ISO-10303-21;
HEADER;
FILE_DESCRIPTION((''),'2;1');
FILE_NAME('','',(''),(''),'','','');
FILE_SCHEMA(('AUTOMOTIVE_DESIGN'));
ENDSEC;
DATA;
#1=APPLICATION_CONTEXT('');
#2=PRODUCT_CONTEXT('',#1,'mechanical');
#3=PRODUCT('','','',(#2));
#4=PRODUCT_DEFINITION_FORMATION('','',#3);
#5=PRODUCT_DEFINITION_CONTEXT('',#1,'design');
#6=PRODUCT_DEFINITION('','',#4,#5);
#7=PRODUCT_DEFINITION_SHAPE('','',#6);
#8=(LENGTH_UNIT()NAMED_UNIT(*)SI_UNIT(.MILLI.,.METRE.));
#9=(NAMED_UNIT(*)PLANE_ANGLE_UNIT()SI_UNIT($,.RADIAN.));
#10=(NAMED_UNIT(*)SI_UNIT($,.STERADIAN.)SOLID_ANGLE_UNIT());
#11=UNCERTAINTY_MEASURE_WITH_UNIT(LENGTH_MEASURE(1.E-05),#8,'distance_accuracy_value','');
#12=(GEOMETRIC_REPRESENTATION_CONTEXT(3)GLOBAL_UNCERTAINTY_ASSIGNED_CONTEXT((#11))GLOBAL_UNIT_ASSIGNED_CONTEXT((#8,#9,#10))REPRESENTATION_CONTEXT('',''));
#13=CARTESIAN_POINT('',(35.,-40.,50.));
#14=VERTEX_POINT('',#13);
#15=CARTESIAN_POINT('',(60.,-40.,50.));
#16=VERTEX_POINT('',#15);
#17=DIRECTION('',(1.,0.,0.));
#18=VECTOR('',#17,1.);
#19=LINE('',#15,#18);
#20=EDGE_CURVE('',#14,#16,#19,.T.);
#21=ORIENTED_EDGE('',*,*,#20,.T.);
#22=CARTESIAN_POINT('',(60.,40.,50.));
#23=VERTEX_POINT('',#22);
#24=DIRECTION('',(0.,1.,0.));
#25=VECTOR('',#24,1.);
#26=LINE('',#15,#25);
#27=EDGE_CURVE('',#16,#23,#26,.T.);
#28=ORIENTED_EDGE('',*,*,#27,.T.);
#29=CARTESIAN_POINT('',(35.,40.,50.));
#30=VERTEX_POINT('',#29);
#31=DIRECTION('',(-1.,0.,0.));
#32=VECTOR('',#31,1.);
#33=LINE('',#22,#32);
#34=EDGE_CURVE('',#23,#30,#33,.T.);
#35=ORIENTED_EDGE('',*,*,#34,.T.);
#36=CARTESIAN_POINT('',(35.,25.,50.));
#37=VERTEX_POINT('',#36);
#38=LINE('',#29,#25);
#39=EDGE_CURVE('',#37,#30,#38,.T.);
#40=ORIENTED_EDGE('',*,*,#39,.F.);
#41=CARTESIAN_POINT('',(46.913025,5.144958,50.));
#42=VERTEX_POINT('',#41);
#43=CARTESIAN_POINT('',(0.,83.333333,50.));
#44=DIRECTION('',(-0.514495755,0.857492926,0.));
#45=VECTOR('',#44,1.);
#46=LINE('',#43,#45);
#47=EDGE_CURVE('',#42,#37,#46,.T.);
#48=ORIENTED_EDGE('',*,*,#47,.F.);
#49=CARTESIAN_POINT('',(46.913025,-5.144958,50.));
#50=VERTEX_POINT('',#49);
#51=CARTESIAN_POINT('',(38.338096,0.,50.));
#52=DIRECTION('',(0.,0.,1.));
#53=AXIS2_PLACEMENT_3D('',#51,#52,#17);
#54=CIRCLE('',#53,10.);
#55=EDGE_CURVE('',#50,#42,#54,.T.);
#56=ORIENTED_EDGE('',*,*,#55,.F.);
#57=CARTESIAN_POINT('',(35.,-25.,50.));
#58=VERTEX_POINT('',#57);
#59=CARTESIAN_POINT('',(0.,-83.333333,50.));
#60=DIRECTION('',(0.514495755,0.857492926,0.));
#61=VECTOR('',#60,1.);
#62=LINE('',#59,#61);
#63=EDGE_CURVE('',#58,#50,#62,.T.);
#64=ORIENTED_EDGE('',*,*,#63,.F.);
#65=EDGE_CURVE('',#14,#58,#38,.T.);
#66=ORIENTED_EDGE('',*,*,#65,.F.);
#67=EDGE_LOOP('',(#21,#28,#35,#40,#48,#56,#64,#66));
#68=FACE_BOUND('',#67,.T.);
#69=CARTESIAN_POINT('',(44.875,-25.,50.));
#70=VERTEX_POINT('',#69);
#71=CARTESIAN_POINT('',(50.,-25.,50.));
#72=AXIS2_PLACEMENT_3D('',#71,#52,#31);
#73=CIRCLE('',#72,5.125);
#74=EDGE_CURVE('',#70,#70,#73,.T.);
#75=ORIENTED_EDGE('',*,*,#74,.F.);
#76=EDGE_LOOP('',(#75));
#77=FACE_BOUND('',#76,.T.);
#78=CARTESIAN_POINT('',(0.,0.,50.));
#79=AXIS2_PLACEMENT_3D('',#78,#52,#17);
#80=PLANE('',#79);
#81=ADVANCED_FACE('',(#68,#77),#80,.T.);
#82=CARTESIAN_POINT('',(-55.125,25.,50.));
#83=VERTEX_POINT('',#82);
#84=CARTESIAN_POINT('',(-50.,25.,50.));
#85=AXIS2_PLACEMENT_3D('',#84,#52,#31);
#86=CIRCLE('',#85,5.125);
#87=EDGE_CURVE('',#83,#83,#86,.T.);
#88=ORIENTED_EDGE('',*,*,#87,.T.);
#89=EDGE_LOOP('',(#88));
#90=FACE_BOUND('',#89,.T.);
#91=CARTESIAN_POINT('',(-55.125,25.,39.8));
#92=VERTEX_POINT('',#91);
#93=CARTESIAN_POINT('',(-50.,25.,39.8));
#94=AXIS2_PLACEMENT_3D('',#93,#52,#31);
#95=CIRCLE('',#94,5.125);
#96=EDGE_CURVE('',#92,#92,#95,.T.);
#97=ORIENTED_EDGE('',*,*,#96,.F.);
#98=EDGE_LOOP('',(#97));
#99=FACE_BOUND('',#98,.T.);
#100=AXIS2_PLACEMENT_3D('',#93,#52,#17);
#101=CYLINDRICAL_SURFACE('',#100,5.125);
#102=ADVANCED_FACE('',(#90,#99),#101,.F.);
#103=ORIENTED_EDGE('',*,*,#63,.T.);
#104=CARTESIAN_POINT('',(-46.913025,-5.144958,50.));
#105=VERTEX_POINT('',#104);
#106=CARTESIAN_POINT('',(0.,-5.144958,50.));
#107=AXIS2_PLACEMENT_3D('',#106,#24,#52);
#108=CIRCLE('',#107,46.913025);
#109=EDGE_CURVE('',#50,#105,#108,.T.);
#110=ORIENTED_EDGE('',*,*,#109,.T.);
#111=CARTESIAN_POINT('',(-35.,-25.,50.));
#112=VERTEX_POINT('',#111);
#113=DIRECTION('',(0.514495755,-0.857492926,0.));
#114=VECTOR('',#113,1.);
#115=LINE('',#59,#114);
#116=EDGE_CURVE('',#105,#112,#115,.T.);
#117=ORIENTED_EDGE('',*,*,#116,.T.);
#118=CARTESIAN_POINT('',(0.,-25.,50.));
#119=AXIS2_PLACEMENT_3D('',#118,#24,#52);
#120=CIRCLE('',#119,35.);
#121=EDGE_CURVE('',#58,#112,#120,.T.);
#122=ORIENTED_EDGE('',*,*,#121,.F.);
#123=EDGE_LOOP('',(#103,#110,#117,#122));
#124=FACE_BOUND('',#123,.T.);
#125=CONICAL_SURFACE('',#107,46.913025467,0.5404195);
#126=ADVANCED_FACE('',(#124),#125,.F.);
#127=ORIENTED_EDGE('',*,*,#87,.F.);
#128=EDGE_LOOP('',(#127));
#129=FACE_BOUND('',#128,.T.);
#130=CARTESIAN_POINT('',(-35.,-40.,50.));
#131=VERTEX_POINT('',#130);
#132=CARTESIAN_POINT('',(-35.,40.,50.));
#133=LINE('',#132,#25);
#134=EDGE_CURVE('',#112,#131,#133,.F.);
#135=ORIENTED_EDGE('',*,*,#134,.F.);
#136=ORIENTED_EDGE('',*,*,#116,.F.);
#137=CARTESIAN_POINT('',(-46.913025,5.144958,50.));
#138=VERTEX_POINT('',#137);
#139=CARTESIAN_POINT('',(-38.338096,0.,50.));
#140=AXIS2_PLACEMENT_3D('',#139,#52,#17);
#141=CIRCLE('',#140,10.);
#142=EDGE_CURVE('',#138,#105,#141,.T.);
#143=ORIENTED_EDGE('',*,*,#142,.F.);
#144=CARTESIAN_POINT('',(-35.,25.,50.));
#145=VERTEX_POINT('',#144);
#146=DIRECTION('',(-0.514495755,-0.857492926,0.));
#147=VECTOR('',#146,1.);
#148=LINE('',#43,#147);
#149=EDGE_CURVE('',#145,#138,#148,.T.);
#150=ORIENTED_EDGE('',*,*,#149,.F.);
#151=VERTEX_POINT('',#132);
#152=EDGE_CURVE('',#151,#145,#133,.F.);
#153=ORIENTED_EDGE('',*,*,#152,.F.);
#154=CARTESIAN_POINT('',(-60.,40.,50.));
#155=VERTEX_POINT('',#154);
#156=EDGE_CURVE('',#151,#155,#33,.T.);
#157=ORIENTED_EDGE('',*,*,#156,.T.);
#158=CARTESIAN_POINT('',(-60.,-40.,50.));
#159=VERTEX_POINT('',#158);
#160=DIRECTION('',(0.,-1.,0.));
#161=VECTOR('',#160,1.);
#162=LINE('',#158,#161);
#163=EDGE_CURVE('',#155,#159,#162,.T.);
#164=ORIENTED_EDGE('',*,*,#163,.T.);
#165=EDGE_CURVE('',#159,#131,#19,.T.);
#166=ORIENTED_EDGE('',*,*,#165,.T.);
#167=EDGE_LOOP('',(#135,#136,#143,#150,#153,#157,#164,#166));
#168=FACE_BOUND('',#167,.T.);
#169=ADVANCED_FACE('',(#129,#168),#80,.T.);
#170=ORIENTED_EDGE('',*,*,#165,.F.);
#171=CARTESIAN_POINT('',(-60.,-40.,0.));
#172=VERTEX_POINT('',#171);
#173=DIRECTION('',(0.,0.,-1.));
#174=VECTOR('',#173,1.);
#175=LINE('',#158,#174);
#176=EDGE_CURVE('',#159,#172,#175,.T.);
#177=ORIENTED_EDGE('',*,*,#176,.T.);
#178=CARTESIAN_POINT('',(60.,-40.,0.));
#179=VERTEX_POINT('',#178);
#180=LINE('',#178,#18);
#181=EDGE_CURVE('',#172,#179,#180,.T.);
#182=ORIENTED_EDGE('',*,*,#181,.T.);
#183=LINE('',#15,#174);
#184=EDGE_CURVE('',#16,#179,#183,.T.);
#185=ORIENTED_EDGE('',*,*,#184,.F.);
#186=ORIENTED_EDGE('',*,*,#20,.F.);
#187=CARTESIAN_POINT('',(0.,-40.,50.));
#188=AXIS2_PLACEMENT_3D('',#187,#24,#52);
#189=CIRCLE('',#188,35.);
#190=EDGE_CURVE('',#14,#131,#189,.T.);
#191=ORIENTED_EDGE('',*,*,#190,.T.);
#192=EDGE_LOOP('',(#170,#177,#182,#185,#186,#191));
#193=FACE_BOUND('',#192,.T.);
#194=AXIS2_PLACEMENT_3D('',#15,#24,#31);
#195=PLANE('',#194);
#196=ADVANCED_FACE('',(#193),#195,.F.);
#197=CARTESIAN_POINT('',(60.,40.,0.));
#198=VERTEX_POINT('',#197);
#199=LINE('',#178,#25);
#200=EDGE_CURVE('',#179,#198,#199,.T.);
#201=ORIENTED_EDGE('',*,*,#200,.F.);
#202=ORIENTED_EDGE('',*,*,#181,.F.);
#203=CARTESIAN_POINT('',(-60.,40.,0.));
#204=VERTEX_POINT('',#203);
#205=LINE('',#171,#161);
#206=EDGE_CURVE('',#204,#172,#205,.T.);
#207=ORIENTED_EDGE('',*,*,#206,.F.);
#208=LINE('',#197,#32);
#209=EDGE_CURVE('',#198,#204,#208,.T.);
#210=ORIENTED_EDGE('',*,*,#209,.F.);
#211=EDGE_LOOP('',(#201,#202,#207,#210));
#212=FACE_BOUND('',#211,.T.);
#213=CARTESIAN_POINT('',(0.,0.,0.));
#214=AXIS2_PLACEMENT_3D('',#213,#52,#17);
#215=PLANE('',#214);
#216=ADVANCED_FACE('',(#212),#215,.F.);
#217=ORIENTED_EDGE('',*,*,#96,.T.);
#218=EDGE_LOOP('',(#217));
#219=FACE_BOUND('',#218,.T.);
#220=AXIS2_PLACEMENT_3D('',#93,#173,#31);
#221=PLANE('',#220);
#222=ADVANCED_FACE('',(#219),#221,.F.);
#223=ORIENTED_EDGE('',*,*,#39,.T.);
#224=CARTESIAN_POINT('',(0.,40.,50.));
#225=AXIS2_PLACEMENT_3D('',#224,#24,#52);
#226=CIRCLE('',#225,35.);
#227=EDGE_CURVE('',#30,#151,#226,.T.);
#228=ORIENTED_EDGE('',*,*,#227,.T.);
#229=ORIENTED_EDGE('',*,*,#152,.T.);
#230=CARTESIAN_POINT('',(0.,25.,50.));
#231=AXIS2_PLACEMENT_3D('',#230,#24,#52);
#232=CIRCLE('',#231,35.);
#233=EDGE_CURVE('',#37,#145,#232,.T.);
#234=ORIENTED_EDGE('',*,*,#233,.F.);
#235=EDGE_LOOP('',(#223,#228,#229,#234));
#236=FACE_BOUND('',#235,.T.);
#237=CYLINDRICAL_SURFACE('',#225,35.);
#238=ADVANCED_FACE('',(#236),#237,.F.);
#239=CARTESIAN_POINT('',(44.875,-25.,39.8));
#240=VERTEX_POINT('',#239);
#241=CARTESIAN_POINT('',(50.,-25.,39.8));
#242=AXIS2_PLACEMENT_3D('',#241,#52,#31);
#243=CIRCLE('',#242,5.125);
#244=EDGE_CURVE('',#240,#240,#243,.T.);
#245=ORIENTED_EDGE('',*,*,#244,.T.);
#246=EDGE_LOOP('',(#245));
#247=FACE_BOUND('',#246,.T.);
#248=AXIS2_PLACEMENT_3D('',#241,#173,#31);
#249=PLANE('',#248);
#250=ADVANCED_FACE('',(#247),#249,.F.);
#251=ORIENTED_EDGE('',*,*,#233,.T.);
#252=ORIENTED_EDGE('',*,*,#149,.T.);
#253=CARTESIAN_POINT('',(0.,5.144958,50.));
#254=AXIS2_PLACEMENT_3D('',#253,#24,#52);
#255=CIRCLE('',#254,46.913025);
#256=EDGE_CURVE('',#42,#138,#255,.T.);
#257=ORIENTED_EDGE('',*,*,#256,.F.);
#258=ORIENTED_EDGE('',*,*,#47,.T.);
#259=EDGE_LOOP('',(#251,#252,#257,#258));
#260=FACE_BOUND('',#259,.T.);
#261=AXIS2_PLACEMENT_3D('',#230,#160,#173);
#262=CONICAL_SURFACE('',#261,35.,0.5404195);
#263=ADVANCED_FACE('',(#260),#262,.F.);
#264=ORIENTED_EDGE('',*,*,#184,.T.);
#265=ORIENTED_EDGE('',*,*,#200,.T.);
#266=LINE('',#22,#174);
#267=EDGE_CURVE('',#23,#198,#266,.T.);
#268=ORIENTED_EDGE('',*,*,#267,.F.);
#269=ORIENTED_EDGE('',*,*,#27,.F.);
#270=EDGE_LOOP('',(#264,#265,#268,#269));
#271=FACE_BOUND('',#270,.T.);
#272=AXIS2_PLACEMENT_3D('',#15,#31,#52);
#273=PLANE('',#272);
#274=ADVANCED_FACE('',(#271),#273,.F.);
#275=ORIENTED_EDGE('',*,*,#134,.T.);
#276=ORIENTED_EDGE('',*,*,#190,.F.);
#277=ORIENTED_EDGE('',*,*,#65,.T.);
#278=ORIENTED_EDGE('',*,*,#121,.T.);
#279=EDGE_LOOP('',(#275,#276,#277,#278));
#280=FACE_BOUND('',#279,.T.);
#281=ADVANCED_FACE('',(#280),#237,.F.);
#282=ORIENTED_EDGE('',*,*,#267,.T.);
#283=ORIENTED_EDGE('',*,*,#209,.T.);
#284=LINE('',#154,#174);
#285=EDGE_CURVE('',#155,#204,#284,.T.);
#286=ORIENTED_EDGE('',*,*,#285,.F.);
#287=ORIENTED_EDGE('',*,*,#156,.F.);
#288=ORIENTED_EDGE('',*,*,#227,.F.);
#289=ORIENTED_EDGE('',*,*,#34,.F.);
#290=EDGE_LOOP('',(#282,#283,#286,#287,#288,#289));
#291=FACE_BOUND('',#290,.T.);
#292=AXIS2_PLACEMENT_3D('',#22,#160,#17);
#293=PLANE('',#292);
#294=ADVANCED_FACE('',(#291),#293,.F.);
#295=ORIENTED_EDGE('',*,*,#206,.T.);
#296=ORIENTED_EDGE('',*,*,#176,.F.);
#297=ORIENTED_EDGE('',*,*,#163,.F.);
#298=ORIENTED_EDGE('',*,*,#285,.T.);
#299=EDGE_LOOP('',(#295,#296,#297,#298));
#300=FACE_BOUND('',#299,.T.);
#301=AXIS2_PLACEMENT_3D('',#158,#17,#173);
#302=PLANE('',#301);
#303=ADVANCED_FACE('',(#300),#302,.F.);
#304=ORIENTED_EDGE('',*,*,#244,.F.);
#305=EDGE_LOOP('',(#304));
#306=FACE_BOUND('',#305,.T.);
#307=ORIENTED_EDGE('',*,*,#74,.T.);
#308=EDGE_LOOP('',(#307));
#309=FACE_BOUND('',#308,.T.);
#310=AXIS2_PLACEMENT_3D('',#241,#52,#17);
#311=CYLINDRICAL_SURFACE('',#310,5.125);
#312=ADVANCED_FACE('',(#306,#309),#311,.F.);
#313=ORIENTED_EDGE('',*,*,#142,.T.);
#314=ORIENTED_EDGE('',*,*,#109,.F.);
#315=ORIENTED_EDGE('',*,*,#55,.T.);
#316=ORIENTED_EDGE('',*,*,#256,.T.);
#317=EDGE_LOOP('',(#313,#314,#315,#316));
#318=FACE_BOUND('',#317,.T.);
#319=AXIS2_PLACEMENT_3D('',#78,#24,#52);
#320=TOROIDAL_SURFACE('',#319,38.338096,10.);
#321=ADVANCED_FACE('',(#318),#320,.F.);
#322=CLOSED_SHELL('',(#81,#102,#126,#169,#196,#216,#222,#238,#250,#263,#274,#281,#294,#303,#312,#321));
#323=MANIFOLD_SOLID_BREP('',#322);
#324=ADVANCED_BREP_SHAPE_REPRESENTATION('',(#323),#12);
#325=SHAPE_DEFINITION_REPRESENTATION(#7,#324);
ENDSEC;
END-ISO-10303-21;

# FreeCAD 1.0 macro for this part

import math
import FreeCAD as App
import Part
import Sketcher


def add_polygon(sketch, points):
    """Adds a closed chain of lines whose ends are joined by coincident constraints."""
    first, n = sketch.GeometryCount, len(points)
    for a, b in zip(points, points[1:] + points[:1]):
        sketch.addGeometry(Part.LineSegment(App.Vector(*a, 0), App.Vector(*b, 0)), False)
    for i in range(n):
        sketch.addConstraint(Sketcher.Constraint("Coincident", first + i, 2, first + (i + 1) % n, 1))

doc = App.newDocument("Part")
params = doc.addObject("Spreadsheet::Sheet", "Params")
for row, (alias, value) in enumerate([
    ("sketch1_width", "120 mm"),
    ("sketch1_height", "80 mm"),
    ("pad1_length", "50 mm"),
    ("sketch2_diameter", "10.25 mm"),
    ("pocket1_length", "10.2 mm"),
    ("sketch3_radius", "10 mm"),
    ("sketch3_width", "35 mm"),
    ("sketch3_height", "15 mm"),
    ("sketch3_height2", "80 mm"),
    ("groove_angle", "360 deg"),
], start=1):
    params.set(f"A{row}", alias)
    params.set(f"B{row}", "=" + value)
    params.setAlias(f"B{row}", alias)

body = doc.addObject("PartDesign::Body", "Body")

# Sketch on XY plane
sketch1 = body.newObject("Sketcher::SketchObject", "Sketch")
sketch1.AttachmentSupport = (doc.getObject("XY_Plane"), [""])
sketch1.MapMode = "FlatFace"
add_polygon(sketch1, [(-60, 40), (-60, -40), (60, -40), (60, 40)])  # lines 0-3
sketch1.addConstraint([
    Sketcher.Constraint("Vertical", 0),
    Sketcher.Constraint("Horizontal", 1),
    Sketcher.Constraint("Vertical", 2),
    Sketcher.Constraint("Horizontal", 3),
    Sketcher.Constraint("Symmetric", 0, 2, 2, 2, -1, 1),
    Sketcher.Constraint("DistanceX", 1, 1, 1, 2, 120.0),
    Sketcher.Constraint("DistanceY", 0, 2, 0, 1, 80.0),
])
sketch1.setExpression("Constraints[9]", "Params.sketch1_width")
sketch1.setExpression("Constraints[10]", "Params.sketch1_height")
pad1 = body.newObject("PartDesign::Pad", "Pad")
pad1.Profile = sketch1
pad1.setExpression("Length", "Params.pad1_length")

# Sketch on XY plane
sketch2 = body.newObject("Sketcher::SketchObject", "Sketch001")
sketch2.AttachmentSupport = (doc.getObject("XY_Plane"), [""])
sketch2.MapMode = "FlatFace"
sketch2.AttachmentOffset = App.Placement(App.Vector(0, 0, 50), App.Rotation())
sketch2.addGeometry([
    Part.Circle(App.Vector(-50, 25, 0), App.Vector(0, 0, 1), 5),
    Part.Circle(App.Vector(50, -25, 0), App.Vector(0, 0, 1), 5),
], False)
sketch2.addConstraint([
    Sketcher.Constraint("Equal", 0, 1),
    Sketcher.Constraint("Symmetric", 0, 3, 1, 3, -1, 1),
    Sketcher.Constraint("Diameter", 0, 10.25),
    Sketcher.Constraint("DistanceX", 0, 3, -1, 1, 50.0),
    Sketcher.Constraint("DistanceY", -1, 1, 0, 3, 25.0),
])
sketch2.setExpression("Constraints[2]", "Params.sketch2_diameter")
pocket1 = body.newObject("PartDesign::Pocket", "Pocket")
pocket1.Profile = sketch2
pocket1.setExpression("Length", "Params.pocket1_length")

# Sketch on XY plane
sketch3 = body.newObject("Sketcher::SketchObject", "Sketch002")
sketch3.AttachmentSupport = (doc.getObject("XY_Plane"), [""])
sketch3.MapMode = "FlatFace"
sketch3.AttachmentOffset = App.Placement(App.Vector(0, 0, 50), App.Rotation())
sketch3.addGeometry([
    Part.LineSegment(App.Vector(-35, 40, 0), App.Vector(-35, 25, 0)),  # 0
    Part.LineSegment(App.Vector(-35, 25, 0), App.Vector(-47, 5, 0)),  # 1
    Part.ArcOfCircle(Part.Circle(App.Vector(-38, 0, 0), App.Vector(0, 0, 1), 10), math.radians(149), math.radians(211)),  # 2
    Part.LineSegment(App.Vector(-47, -5, 0), App.Vector(-35, -25, 0)),  # 3
    Part.LineSegment(App.Vector(-35, -25, 0), App.Vector(-35, -40, 0)),  # 4
    Part.LineSegment(App.Vector(-35, -40, 0), App.Vector(0, -40, 0)),  # 5
    Part.LineSegment(App.Vector(0, -40, 0), App.Vector(0, 40, 0)),  # 6
    Part.LineSegment(App.Vector(0, 40, 0), App.Vector(-35, 40, 0)),  # 7
], False)
sketch3.addConstraint([
    Sketcher.Constraint("Coincident", 0, 2, 1, 1),
    Sketcher.Constraint("Tangent", 1, 2, 2, 1),
    Sketcher.Constraint("Tangent", 2, 2, 3, 1),
    Sketcher.Constraint("Coincident", 3, 2, 4, 1),
    Sketcher.Constraint("Coincident", 4, 2, 5, 1),
    Sketcher.Constraint("Coincident", 5, 2, 6, 1),
    Sketcher.Constraint("Coincident", 6, 2, 7, 1),
    Sketcher.Constraint("Coincident", 7, 2, 0, 1),
    Sketcher.Constraint("Vertical", 0),
    Sketcher.Constraint("Vertical", 4),
    Sketcher.Constraint("Horizontal", 5),
    Sketcher.Constraint("Vertical", 6),
    Sketcher.Constraint("Horizontal", 7),
    Sketcher.Constraint("Symmetric", 5, 2, 6, 2, -1, 1),
    Sketcher.Constraint("Symmetric", 1, 2, 2, 2, -1),
    Sketcher.Constraint("Vertical", 0, 2, 3, 2),
    Sketcher.Constraint("Radius", 2, 10.0),
    Sketcher.Constraint("DistanceX", 5, 1, 5, 2, 35.0),
    Sketcher.Constraint("DistanceY", 0, 2, 0, 1, 15.0),
    Sketcher.Constraint("DistanceY", 6, 1, 6, 2, 80.0),
    Sketcher.Constraint("Distance", 1, 23.154759),
])
sketch3.setExpression("Constraints[16]", "Params.sketch3_radius")
sketch3.setExpression("Constraints[17]", "Params.sketch3_width")
sketch3.setExpression("Constraints[18]", "Params.sketch3_height")
sketch3.setExpression("Constraints[19]", "Params.sketch3_height2")
groove = body.newObject("PartDesign::Groove", "Groove")
groove.Profile = sketch3
groove.ReferenceAxis = (sketch3, ["V_Axis"])
groove.setExpression("Angle", "Params.groove_angle")

doc.recompute()
